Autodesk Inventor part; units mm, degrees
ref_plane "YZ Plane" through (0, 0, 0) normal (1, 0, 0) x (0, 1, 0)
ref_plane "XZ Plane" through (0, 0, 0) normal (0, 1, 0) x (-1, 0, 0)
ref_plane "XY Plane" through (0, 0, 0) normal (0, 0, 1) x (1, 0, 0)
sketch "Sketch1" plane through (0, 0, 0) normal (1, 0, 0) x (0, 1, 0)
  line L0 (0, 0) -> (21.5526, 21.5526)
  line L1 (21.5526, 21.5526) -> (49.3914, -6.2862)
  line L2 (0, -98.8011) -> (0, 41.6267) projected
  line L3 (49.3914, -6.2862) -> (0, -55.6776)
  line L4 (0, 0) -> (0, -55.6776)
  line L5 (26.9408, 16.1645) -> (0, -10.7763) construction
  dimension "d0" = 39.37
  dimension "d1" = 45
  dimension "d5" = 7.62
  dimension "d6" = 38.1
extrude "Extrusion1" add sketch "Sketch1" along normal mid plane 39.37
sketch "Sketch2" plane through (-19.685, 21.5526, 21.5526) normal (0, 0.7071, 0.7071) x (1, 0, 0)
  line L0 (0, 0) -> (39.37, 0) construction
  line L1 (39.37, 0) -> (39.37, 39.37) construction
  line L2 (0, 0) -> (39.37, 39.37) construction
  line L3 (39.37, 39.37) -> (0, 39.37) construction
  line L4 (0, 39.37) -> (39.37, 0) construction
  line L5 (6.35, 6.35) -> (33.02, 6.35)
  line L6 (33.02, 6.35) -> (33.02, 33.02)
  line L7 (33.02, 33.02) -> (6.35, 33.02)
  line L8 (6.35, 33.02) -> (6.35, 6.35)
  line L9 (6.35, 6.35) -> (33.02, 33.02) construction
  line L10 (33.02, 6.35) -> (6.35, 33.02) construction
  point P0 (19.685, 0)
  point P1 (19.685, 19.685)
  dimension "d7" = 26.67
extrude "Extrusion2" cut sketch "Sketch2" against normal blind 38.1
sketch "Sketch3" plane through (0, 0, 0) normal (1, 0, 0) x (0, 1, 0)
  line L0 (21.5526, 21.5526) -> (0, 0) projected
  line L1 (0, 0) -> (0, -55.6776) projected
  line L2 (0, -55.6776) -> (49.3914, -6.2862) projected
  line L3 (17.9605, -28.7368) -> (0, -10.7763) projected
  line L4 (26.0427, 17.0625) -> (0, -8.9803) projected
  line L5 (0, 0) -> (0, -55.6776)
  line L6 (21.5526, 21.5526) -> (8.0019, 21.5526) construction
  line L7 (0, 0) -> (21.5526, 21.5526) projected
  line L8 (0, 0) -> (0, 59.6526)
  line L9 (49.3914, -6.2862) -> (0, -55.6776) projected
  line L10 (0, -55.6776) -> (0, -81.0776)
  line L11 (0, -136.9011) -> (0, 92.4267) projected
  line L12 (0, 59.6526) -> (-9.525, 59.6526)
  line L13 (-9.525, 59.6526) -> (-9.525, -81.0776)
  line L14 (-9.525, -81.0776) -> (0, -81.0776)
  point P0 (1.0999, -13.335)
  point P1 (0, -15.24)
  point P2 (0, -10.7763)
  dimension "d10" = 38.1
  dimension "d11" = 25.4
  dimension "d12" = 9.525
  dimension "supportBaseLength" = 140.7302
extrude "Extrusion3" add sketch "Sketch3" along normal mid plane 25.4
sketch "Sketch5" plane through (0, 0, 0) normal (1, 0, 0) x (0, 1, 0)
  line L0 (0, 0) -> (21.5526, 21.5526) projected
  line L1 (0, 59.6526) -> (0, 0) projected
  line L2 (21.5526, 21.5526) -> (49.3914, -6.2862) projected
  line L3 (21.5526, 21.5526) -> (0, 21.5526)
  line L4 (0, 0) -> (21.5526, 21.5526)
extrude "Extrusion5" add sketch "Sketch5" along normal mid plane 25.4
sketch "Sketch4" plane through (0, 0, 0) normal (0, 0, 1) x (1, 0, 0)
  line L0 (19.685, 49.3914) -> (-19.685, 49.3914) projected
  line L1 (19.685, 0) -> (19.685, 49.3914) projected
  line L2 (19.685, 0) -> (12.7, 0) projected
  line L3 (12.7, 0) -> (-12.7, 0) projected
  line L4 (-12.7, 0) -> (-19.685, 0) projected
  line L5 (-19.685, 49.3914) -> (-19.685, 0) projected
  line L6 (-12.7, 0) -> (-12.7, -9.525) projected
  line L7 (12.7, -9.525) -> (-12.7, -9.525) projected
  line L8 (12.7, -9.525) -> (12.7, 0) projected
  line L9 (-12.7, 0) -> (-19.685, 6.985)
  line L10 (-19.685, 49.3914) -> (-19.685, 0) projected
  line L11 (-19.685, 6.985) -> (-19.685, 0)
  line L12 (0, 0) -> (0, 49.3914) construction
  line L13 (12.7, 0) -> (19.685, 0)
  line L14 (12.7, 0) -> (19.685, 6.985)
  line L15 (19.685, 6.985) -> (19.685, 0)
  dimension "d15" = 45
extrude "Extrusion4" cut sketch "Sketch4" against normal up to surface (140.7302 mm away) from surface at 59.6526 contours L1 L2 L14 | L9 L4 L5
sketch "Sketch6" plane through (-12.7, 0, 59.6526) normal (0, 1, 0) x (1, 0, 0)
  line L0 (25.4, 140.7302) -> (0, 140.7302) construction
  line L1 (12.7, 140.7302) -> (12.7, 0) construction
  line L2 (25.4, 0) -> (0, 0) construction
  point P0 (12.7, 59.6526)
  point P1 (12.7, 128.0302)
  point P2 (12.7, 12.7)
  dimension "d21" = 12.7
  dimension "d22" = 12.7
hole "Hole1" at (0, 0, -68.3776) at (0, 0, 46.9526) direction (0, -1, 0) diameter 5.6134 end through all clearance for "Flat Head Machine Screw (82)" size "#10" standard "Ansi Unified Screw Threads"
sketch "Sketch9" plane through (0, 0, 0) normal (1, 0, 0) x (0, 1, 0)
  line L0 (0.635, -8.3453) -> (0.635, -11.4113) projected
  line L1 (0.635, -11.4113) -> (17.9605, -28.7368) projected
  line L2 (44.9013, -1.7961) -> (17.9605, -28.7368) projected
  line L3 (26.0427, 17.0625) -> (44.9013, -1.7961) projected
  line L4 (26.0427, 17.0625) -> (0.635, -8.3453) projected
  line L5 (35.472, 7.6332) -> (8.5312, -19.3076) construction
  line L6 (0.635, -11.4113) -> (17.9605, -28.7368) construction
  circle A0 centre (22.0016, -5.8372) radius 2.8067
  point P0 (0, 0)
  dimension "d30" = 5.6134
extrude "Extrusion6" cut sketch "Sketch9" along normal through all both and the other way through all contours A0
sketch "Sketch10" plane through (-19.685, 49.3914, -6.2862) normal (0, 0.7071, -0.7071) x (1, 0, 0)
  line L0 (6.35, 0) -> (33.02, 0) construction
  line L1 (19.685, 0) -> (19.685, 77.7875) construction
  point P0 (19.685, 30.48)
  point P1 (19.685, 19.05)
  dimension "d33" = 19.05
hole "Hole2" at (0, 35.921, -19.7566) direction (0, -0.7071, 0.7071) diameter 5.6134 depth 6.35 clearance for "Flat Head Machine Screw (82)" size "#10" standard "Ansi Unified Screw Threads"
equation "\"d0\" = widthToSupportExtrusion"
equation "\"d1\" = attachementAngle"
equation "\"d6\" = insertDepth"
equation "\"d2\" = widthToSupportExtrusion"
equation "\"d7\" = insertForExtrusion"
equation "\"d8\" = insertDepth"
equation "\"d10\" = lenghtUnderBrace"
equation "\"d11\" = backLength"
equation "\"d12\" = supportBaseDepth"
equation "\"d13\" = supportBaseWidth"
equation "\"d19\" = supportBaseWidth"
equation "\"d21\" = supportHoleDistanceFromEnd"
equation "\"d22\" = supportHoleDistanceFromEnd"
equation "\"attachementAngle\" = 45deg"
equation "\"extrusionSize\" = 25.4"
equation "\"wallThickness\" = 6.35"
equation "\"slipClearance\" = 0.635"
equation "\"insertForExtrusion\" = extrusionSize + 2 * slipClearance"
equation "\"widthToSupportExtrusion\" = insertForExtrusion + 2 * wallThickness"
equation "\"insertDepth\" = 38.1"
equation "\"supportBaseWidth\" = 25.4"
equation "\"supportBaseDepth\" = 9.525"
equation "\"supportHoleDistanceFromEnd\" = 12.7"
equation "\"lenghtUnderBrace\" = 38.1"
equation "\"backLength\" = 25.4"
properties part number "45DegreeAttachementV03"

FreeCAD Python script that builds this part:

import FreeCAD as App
import Part
import Sketcher

V = App.Vector
Q = App.Units.Quantity


def add_polygon(sketch, points):
    """Adds a closed chain of lines whose ends are joined by coincident constraints."""
    first, n = sketch.GeometryCount, len(points)
    for a, b in zip(points, points[1:] + points[:1]):
        sketch.addGeometry(Part.LineSegment(App.Vector(*a, 0), App.Vector(*b, 0)), False)
    for i in range(n):
        sketch.addConstraint(Sketcher.Constraint("Coincident", first + i, 2, first + (i + 1) % n, 1))

doc = App.newDocument("Part")
body = doc.addObject("PartDesign::Body", "Body")

# Sketch on YZ plane
sketch1 = body.newObject("Sketcher::SketchObject", "Sketch")
sketch1.AttachmentSupport = (doc.getObject("YZ_Plane"), [""])
sketch1.MapMode = "FlatFace"
add_polygon(sketch1, [(22, 22), (0, 0), (0, -56), (49, -6)])  # lines 0-3
sketch1.addConstraint([
    Sketcher.Constraint("Vertical", 1),
    Sketcher.Constraint("Coincident", 0, 2, -1, 1),
    Sketcher.Constraint("Parallel", 0, 2),
    Sketcher.Constraint("Perpendicular", 2, 3),
    Sketcher.Constraint("Angle", 2, Q("45 deg")),
    Sketcher.Constraint("Distance", 3, Q("1.55 in")),
    Sketcher.Constraint("Distance", 0, Q("1.2 in")),
])
pad1 = body.newObject("PartDesign::Pad", "Pad")
pad1.Profile = sketch1
pad1.Length = Q("1.55 in")
pad1.Midplane = True

# Sketch on an angled plane
sketch2 = body.newObject("Sketcher::SketchObject", "Sketch001")
sketch2.Placement = App.Placement(V(-19.685, 21.5526, 21.5526), App.Rotation(V(1, 0, 0), V(0, 0.707106781, -0.707106781), V(0, 0.707106781, 0.707106781), "ZXY"))
add_polygon(sketch2, [(6, 33), (6, 6), (33, 6), (33, 33)])  # lines 0-3
sketch2.addConstraint([
    Sketcher.Constraint("Vertical", 0),
    Sketcher.Constraint("Horizontal", 1),
    Sketcher.Constraint("Vertical", 2),
    Sketcher.Constraint("Horizontal", 3),
    Sketcher.Constraint("Equal", 3, 0),
    Sketcher.Constraint("DistanceX", 1, 1, 1, 2, Q("1.05 in")),
    Sketcher.Constraint("DistanceX", -1, 1, 1, 2, Q("1.3 in")),
    Sketcher.Constraint("DistanceY", -1, 1, 2, 2, Q("1.3 in")),
])
pocket1 = body.newObject("PartDesign::Pocket", "Pocket")
pocket1.Profile = sketch2
pocket1.Length = Q("1.5 in")

# Sketch on YZ plane
sketch3 = body.newObject("Sketcher::SketchObject", "Sketch002")
sketch3.AttachmentSupport = (doc.getObject("YZ_Plane"), [""])
sketch3.MapMode = "FlatFace"
add_polygon(sketch3, [(0, -81), (0, 60), (-10, 60), (-10, -81)])  # lines 0-3
sketch3.addConstraint([
    Sketcher.Constraint("Vertical", 0),
    Sketcher.Constraint("Horizontal", 1),
    Sketcher.Constraint("Vertical", 2),
    Sketcher.Constraint("Horizontal", 3),
    Sketcher.Constraint("PointOnObject", 0, 2, -2),
    Sketcher.Constraint("DistanceX", 1, 2, 1, 1, Q("0.375 in")),
    Sketcher.Constraint("DistanceY", 0, 1, 0, 2, Q("140.7302 mm")),
    Sketcher.Constraint("DistanceY", -1, 1, 0, 2, Q("59.6526 mm")),
])
pad2 = body.newObject("PartDesign::Pad", "Pad001")
pad2.Profile = sketch3
pad2.Length = Q("1 in")
pad2.Midplane = True

# Sketch on YZ plane
sketch4 = body.newObject("Sketcher::SketchObject", "Sketch003")
sketch4.AttachmentSupport = (doc.getObject("YZ_Plane"), [""])
sketch4.MapMode = "FlatFace"
add_polygon(sketch4, [(0, 22), (0, 0), (22, 22)])  # lines 0-2
sketch4.addConstraint([
    Sketcher.Constraint("Vertical", 0),
    Sketcher.Constraint("Horizontal", 2),
    Sketcher.Constraint("Coincident", 0, 2, -1, 1),
    Sketcher.Constraint("Equal", 2, 0),
    Sketcher.Constraint("Distance", 1, Q("1.2 in")),
])
pad3 = body.newObject("PartDesign::Pad", "Pad002")
pad3.Profile = sketch4
pad3.Length = Q("1 in")
pad3.Midplane = True

# Sketch on XY plane
sketch5 = body.newObject("Sketcher::SketchObject", "Sketch004")
sketch5.AttachmentSupport = (doc.getObject("XY_Plane"), [""])
sketch5.MapMode = "FlatFace"
sketch5.AttachmentOffset = App.Placement(V(0, 0, 59.6526), App.Rotation())
add_polygon(sketch5, [(20, 0), (20, 7), (13, 0)])  # lines 0-2
add_polygon(sketch5, [(-13, 0), (-20, 7), (-20, 0)])  # lines 3-5
sketch5.addConstraint([
    Sketcher.Constraint("Vertical", 0),
    Sketcher.Constraint("Horizontal", 2),
    Sketcher.Constraint("Vertical", 4),
    Sketcher.Constraint("Horizontal", 5),
    Sketcher.Constraint("Symmetric", 2, 2, 4, 2, -1, 1),
    Sketcher.Constraint("Symmetric", 1, 2, 5, 2, -2),
    Sketcher.Constraint("Perpendicular", 1, 3),
    Sketcher.Constraint("Horizontal", 0, 2, 3, 2),
    Sketcher.Constraint("DistanceX", 5, 2, 1, 2, Q("1 in")),
    Sketcher.Constraint("DistanceX", 2, 1, 2, 2, Q("0.275 in")),
])
pocket2 = body.newObject("PartDesign::Pocket", "Pocket001")
pocket2.Profile = sketch5
pocket2.Length = 140.7302

# Sketch on XZ plane
sketch6 = body.newObject("Sketcher::SketchObject", "Sketch005")
sketch6.AttachmentSupport = (doc.getObject("XZ_Plane"), [""])
sketch6.MapMode = "FlatFace"
sketch6.addGeometry([
    Part.Circle(V(0, -68.4, 0), V(0, 0, 1), 2.8),
    Part.Circle(V(0, 47, 0), V(0, 0, 1), 2.8),
], False)
sketch6.addConstraint([
    Sketcher.Constraint("Equal", 0, 1),
    Sketcher.Constraint("PointOnObject", 0, 3, -2),
    Sketcher.Constraint("PointOnObject", 1, 3, -2),
    Sketcher.Constraint("Diameter", 0, Q("0.221 in")),
    Sketcher.Constraint("DistanceY", 0, 3, -1, 1, Q("68.3776 mm")),
    Sketcher.Constraint("DistanceY", -1, 1, 1, 3, Q("46.9526 mm")),
])
doc.recompute()
hole = body.newObject("PartDesign::Hole", "Hole")
hole.Profile = sketch6
hole.ThreadType = "None"
hole.Diameter = Q("0.221 in")
hole.DepthType = "ThroughAll"
hole.Reversed = True

# Sketch on YZ plane
sketch7 = body.newObject("Sketcher::SketchObject", "Sketch006")
sketch7.AttachmentSupport = (doc.getObject("YZ_Plane"), [""])
sketch7.MapMode = "FlatFace"
sketch7.addGeometry(Part.Circle(V(22, -5.8, 0), V(0, 0, 1), 2.8), False)
sketch7.addConstraint([
    Sketcher.Constraint("Diameter", 0, Q("0.221 in")),
    Sketcher.Constraint("DistanceX", -1, 1, 0, 3, Q("0.8662 in")),
    Sketcher.Constraint("DistanceY", 0, 3, -1, 1, Q("0.2298 in")),
])
pocket3 = body.newObject("PartDesign::Pocket", "Pocket002")
pocket3.Profile = sketch7
pocket3.Type = "ThroughAll"
pocket3.Midplane = True

# Sketch on an angled plane
sketch8 = body.newObject("Sketcher::SketchObject", "Sketch007")
sketch8.Placement = App.Placement(V(0, 27.8388, -27.8388), App.Rotation(V(0, 0.707106781, 0.707106781), V(0.999999999, 0, 0), V(0, 0.707106781, -0.707106781), "ZXY"))
sketch8.addGeometry(Part.Circle(V(11.4, 0, 0), V(0, 0, 1), 2.8), False)
sketch8.addConstraint([
    Sketcher.Constraint("PointOnObject", 0, 3, -1),
    Sketcher.Constraint("Diameter", 0, Q("0.221 in")),
    Sketcher.Constraint("DistanceX", -1, 1, 0, 3, Q("0.45 in")),
])
doc.recompute()
hole2 = body.newObject("PartDesign::Hole", "Hole001")
hole2.Profile = sketch8
hole2.ThreadType = "None"
hole2.Diameter = Q("0.221 in")
hole2.DepthType = "Dimension"
hole2.Depth = Q("0.25 in")
hole2.DrillPoint = "Flat"

doc.recompute()
